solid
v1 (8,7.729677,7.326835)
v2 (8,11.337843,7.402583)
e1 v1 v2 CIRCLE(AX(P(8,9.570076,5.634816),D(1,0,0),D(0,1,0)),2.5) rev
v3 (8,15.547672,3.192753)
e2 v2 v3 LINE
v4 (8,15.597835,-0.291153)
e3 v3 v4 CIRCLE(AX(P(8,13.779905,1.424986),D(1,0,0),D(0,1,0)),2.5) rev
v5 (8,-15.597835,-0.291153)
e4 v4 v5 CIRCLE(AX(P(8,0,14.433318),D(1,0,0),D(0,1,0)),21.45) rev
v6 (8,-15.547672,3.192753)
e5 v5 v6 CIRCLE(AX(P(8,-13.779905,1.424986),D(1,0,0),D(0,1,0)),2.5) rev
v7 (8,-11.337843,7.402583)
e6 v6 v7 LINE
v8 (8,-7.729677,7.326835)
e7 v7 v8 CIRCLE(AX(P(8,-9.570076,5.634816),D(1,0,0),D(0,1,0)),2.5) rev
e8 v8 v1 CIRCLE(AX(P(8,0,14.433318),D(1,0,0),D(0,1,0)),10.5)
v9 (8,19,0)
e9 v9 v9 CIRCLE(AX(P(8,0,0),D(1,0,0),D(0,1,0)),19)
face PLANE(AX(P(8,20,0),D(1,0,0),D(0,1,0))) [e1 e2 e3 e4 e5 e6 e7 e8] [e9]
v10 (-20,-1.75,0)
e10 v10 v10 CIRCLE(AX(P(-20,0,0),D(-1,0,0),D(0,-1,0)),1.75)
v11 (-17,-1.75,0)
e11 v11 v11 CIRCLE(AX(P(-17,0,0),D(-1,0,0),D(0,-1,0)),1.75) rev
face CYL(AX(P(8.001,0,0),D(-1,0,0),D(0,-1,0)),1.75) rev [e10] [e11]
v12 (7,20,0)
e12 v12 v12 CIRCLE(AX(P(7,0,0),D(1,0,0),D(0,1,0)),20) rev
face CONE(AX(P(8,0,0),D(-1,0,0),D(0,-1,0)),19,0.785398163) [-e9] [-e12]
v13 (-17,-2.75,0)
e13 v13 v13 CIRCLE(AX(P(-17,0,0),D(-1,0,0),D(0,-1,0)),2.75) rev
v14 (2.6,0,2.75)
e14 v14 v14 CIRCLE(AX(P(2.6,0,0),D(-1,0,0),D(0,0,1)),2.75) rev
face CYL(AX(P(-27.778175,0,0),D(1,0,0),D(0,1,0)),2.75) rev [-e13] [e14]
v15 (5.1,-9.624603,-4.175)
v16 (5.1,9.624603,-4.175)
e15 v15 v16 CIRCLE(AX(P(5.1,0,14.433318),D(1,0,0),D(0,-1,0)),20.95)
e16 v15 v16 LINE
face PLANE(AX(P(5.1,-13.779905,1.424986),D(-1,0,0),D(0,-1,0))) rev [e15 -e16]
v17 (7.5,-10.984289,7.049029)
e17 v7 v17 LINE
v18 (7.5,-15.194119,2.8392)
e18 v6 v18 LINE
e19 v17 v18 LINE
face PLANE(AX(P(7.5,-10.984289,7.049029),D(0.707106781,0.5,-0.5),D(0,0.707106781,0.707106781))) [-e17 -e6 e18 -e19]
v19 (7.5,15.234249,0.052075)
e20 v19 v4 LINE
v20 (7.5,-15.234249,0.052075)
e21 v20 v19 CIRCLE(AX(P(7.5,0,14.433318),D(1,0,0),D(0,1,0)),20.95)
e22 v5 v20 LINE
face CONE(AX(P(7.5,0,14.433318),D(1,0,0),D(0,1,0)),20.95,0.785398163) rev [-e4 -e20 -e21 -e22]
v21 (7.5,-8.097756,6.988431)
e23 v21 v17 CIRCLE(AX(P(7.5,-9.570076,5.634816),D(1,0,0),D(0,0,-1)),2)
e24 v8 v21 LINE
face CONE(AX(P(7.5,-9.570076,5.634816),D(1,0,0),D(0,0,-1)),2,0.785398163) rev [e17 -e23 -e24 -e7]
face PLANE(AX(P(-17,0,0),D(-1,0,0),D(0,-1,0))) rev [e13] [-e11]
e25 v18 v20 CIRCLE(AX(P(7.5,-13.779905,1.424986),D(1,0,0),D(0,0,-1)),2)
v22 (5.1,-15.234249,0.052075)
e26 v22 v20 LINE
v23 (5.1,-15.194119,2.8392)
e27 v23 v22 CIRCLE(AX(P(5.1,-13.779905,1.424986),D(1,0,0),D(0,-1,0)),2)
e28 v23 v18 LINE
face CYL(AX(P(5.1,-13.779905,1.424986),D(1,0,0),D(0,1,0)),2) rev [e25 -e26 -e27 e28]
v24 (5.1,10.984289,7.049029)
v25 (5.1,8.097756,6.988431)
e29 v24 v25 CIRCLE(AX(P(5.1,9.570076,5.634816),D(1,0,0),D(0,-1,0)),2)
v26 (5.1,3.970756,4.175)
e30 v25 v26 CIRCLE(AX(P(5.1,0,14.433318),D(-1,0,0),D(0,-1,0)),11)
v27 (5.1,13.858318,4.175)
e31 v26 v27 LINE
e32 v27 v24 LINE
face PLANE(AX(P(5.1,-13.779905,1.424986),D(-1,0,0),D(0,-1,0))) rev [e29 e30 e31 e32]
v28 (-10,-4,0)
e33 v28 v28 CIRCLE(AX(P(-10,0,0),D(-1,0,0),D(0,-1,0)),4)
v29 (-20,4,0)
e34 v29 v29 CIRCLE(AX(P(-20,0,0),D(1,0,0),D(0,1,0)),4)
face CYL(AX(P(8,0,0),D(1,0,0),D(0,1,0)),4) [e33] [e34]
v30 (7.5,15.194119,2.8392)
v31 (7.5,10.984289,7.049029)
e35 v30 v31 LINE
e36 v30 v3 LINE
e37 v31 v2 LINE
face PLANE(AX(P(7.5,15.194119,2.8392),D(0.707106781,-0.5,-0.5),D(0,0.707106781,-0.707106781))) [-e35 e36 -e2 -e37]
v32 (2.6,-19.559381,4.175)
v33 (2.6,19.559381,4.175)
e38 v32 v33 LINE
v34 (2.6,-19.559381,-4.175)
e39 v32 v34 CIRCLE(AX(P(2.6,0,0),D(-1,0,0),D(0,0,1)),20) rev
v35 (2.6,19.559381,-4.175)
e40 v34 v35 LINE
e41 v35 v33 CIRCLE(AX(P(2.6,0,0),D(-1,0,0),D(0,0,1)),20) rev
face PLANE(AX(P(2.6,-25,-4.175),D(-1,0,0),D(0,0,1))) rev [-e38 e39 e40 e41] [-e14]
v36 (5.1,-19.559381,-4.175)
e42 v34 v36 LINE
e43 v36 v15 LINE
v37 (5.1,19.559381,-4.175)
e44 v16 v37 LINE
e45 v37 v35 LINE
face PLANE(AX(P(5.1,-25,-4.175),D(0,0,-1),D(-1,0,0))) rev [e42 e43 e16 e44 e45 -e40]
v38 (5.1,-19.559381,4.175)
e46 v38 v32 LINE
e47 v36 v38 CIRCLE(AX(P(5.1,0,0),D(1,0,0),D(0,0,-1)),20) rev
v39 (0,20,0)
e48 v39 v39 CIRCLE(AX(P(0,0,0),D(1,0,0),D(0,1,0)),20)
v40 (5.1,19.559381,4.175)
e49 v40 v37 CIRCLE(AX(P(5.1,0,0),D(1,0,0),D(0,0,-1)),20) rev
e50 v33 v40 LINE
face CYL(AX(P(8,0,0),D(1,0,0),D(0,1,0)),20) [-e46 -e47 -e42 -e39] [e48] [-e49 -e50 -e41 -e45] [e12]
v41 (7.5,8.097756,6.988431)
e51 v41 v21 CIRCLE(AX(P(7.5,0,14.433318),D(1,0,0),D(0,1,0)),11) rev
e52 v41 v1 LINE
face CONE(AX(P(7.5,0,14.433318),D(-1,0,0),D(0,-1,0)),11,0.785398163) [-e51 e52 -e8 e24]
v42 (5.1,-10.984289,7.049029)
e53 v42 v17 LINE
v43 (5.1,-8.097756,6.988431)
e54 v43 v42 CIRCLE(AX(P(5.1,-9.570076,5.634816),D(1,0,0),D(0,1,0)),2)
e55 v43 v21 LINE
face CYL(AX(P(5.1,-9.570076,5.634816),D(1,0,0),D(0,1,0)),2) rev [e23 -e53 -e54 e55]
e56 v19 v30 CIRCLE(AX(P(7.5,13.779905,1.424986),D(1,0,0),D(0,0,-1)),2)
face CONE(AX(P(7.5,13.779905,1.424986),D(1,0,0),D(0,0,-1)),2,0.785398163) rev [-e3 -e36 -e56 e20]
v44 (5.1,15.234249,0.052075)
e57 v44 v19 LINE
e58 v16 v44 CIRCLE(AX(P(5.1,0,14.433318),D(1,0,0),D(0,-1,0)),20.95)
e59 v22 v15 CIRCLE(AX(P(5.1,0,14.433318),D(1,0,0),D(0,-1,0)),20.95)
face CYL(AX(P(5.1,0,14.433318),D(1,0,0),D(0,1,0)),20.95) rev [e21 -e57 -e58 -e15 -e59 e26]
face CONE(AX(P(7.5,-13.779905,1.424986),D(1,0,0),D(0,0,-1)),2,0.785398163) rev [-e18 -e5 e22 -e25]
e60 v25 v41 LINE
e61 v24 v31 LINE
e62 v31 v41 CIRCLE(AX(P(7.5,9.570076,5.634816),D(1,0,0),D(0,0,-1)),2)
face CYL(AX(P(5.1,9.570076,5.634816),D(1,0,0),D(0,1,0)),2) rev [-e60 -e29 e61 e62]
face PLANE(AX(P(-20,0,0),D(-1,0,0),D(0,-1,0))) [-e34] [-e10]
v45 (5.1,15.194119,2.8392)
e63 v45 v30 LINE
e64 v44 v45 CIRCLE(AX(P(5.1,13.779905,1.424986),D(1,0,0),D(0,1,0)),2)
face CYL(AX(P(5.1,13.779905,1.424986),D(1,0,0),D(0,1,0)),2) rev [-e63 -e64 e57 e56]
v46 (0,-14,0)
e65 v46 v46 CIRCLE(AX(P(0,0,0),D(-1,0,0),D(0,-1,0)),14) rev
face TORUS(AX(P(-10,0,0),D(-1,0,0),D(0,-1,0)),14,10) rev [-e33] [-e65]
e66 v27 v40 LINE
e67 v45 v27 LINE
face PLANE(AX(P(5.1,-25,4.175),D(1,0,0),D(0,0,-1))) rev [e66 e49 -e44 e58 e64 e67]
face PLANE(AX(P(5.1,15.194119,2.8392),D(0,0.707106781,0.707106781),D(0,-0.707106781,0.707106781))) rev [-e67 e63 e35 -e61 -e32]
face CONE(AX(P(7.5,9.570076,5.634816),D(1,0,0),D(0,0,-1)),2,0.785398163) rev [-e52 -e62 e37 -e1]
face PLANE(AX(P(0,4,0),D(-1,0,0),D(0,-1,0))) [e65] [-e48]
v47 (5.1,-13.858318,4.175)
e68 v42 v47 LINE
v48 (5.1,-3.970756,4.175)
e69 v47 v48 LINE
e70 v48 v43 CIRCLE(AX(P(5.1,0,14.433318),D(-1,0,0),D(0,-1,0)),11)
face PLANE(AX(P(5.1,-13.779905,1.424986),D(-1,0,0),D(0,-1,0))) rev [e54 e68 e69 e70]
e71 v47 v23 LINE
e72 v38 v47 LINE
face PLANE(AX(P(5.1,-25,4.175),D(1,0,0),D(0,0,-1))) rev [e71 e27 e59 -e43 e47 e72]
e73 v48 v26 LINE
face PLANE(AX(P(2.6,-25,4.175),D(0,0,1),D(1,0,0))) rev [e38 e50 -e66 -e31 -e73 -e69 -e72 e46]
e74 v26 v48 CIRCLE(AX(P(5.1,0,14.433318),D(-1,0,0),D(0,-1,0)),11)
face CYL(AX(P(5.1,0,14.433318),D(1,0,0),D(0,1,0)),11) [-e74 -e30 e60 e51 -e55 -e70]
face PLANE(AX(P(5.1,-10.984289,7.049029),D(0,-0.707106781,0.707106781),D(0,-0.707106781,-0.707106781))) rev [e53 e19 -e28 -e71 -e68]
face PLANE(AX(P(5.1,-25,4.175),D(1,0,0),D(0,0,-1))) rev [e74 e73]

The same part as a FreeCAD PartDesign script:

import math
import FreeCAD as App
import Part
import Sketcher
Q = App.Units.Quantity


def edges_at(feature, points):
    """Names of the edges that pass closest to the given points."""
    edges = feature.Shape.Edges
    near = lambda p: min(range(len(edges)), key=lambda i: edges[i].distToShape(Part.Vertex(*p))[0])
    return sorted({f"Edge{near(p) + 1}" for p in points})

doc = App.newDocument("Part")
params = doc.addObject("Spreadsheet::Sheet", "Params")
for row, (alias, value) in enumerate([
    ("sketch1_width", "28 mm"),
    ("sketch1_width2", "8 mm"),
    ("sketch1_height", "4 mm"),
    ("revolution_angle", "360 deg"),
    ("sketch2_radius", "2 mm"),
    ("sketch2_radius2", "11 mm"),
    ("sketch2_radius3", "20.95 mm"),
    ("pocket1_length", "2.9 mm"),
    ("fillet_radius", "10 mm"),
    ("sketch3_diameter", "3.5 mm"),
    ("sketch4_diameter", "5.5 mm"),
    ("pocket3_length", "22.1 mm"),
    ("chamfer_size", "1 mm"),
    ("chamfer2_size", "0.5 mm"),
    ("sketch5_width", "2.5 mm"),
    ("sketch5_height", "8.35 mm"),
    ("pocket4_length", "50 mm"),
], start=1):
    params.set(f"A{row}", alias)
    params.set(f"B{row}", "=" + value)
    params.setAlias(f"B{row}", alias)

body = doc.addObject("PartDesign::Body", "Body")

# Sketch on XY plane
sketch1 = body.newObject("Sketcher::SketchObject", "Sketch")
sketch1.AttachmentSupport = (doc.getObject("XY_Plane"), [""])
sketch1.MapMode = "FlatFace"
sketch1.addGeometry(Part.LineSegment(App.Vector(-20, 4, 0), App.Vector(-20, 0, 0)), False)
sketch1.addGeometry(Part.LineSegment(App.Vector(-20, 0, 0), App.Vector(8, 0, 0)), False)
sketch1.addGeometry(Part.LineSegment(App.Vector(8, 0, 0), App.Vector(8, 20, 0)), False)
sketch1.addGeometry(Part.LineSegment(App.Vector(8, 20, 0), App.Vector(0, 20, 0)), False)
sketch1.addGeometry(Part.LineSegment(App.Vector(0, 20, 0), App.Vector(0, 4, 0)), False)
sketch1.addGeometry(Part.LineSegment(App.Vector(0, 4, 0), App.Vector(-20, 4, 0)), False)
sketch1.addConstraint(Sketcher.Constraint("Coincident", 0, 2, 1, 1))
sketch1.addConstraint(Sketcher.Constraint("Coincident", 1, 2, 2, 1))
sketch1.addConstraint(Sketcher.Constraint("Coincident", 2, 2, 3, 1))
sketch1.addConstraint(Sketcher.Constraint("Coincident", 3, 2, 4, 1))
sketch1.addConstraint(Sketcher.Constraint("Coincident", 4, 2, 5, 1))
sketch1.addConstraint(Sketcher.Constraint("Coincident", 5, 2, 0, 1))
sketch1.addConstraint(Sketcher.Constraint("Vertical", 0))
sketch1.addConstraint(Sketcher.Constraint("Horizontal", 1))
sketch1.addConstraint(Sketcher.Constraint("Vertical", 2))
sketch1.addConstraint(Sketcher.Constraint("Horizontal", 3))
sketch1.addConstraint(Sketcher.Constraint("Vertical", 4))
sketch1.addConstraint(Sketcher.Constraint("Horizontal", 5))
sketch1.addConstraint(Sketcher.Constraint("PointOnObject", 0, 2, -1))
sketch1.addConstraint(Sketcher.Constraint("PointOnObject", 3, 2, -2))
sketch1.addConstraint(Sketcher.Constraint("Equal", 5, 2))
sketch1.addConstraint(Sketcher.Constraint("DistanceX", 1, 1, 1, 2, Q("28 mm")))
sketch1.addConstraint(Sketcher.Constraint("DistanceX", 3, 2, 3, 1, Q("8 mm")))
sketch1.addConstraint(Sketcher.Constraint("DistanceY", 0, 2, 0, 1, Q("4 mm")))
sketch1.setExpression("Constraints[15]", "Params.sketch1_width")
sketch1.setExpression("Constraints[16]", "Params.sketch1_width2")
sketch1.setExpression("Constraints[17]", "Params.sketch1_height")
revolution = body.newObject("PartDesign::Revolution", "Revolution")
revolution.Profile = sketch1
revolution.ReferenceAxis = (sketch1, ["H_Axis"])
revolution.setExpression("Angle", "Params.revolution_angle")

# Sketch on YZ plane
sketch2 = body.newObject("Sketcher::SketchObject", "Sketch001")
sketch2.AttachmentSupport = (doc.getObject("YZ_Plane"), [""])
sketch2.MapMode = "FlatFace"
sketch2.AttachmentOffset = App.Placement(App.Vector(0, 0, 8), App.Rotation())
sketch2.addGeometry(Part.LineSegment(App.Vector(15.2, 2.8, 0), App.Vector(11, 7, 0)), False)
sketch2.addGeometry(Part.ArcOfCircle(Part.Circle(App.Vector(9.6, 5.6, 0), App.Vector(0, 0, 1), 2), math.radians(45), math.radians(137)), False)
sketch2.addGeometry(Part.ArcOfCircle(Part.Circle(App.Vector(0, 14.4, 0), App.Vector(0, 0, 1), 11), math.radians(-137), math.radians(-43)), False)
sketch2.addGeometry(Part.ArcOfCircle(Part.Circle(App.Vector(-9.6, 5.6, 0), App.Vector(0, 0, 1), 2), math.radians(43), math.radians(135)), False)
sketch2.addGeometry(Part.LineSegment(App.Vector(-11, 7, 0), App.Vector(-15.2, 2.8, 0)), False)
sketch2.addGeometry(Part.ArcOfCircle(Part.Circle(App.Vector(-13.8, 1.4, 0), App.Vector(0, 0, 1), 2), math.radians(135), math.radians(223)), False)
sketch2.addGeometry(Part.ArcOfCircle(Part.Circle(App.Vector(0, 14.4, 0), App.Vector(0, 0, 1), 21), math.radians(-137), math.radians(-43)), False)
sketch2.addGeometry(Part.ArcOfCircle(Part.Circle(App.Vector(13.8, 1.4, 0), App.Vector(0, 0, 1), 2), math.radians(-43), math.radians(45)), False)
sketch2.addConstraint(Sketcher.Constraint("Tangent", 0, 2, 1, 1))
sketch2.addConstraint(Sketcher.Constraint("Tangent", 1, 2, 2, 2))
sketch2.addConstraint(Sketcher.Constraint("Tangent", 2, 1, 3, 1))
sketch2.addConstraint(Sketcher.Constraint("Tangent", 3, 2, 4, 1))
sketch2.addConstraint(Sketcher.Constraint("Tangent", 4, 2, 5, 1))
sketch2.addConstraint(Sketcher.Constraint("Tangent", 5, 2, 6, 1))
sketch2.addConstraint(Sketcher.Constraint("Tangent", 6, 2, 7, 1))
sketch2.addConstraint(Sketcher.Constraint("Tangent", 7, 2, 0, 1))
sketch2.addConstraint(Sketcher.Constraint("Coincident", 6, 3, 2, 3))
sketch2.addConstraint(Sketcher.Constraint("Equal", 1, 3))
sketch2.addConstraint(Sketcher.Constraint("Equal", 3, 5))
sketch2.addConstraint(Sketcher.Constraint("Equal", 5, 7))
sketch2.addConstraint(Sketcher.Constraint("Symmetric", 1, 3, 3, 3, -2))
sketch2.addConstraint(Sketcher.Constraint("Perpendicular", 0, 4))
sketch2.addConstraint(Sketcher.Constraint("Horizontal", 5, 3, 7, 3))
sketch2.addConstraint(Sketcher.Constraint("Radius", 1, Q("2 mm")))
sketch2.addConstraint(Sketcher.Constraint("Radius", 2, Q("11 mm")))
sketch2.addConstraint(Sketcher.Constraint("Radius", 6, Q("20.95 mm")))
sketch2.addConstraint(Sketcher.Constraint("Distance", 0, Q("5.953598 mm")))
sketch2.addConstraint(Sketcher.Constraint("DistanceY", -1, 1, 4, 2, Q("2.8392 mm")))
sketch2.setExpression("Constraints[15]", "Params.sketch2_radius")
sketch2.setExpression("Constraints[16]", "Params.sketch2_radius2")
sketch2.setExpression("Constraints[17]", "Params.sketch2_radius3")
pocket1 = body.newObject("PartDesign::Pocket", "Pocket")
pocket1.Profile = sketch2
pocket1.setExpression("Length", "Params.pocket1_length")
doc.recompute()

fillet = body.newObject("PartDesign::Fillet", "Fillet")
fillet.Base = (pocket1, edges_at(pocket1, [(0, -4, 0)]))
fillet.setExpression("Radius", "Params.fillet_radius")

# Sketch on YZ plane
sketch3 = body.newObject("Sketcher::SketchObject", "Sketch002")
sketch3.AttachmentSupport = (doc.getObject("YZ_Plane"), [""])
sketch3.MapMode = "FlatFace"
sketch3.AttachmentOffset = App.Placement(App.Vector(0, 0, -20), App.Rotation())
sketch3.addGeometry(Part.Circle(App.Vector(0, 0, 0), App.Vector(0, 0, 1), 1.8), False)
sketch3.addConstraint(Sketcher.Constraint("Coincident", 0, 3, -1, 1))
sketch3.addConstraint(Sketcher.Constraint("Diameter", 0, Q("3.5 mm")))
sketch3.setExpression("Constraints[1]", "Params.sketch3_diameter")
pocket2 = body.newObject("PartDesign::Pocket", "Pocket001")
pocket2.Profile = sketch3
pocket2.Type = "UpToFirst"
pocket2.Reversed = True

# Sketch on YZ plane
sketch4 = body.newObject("Sketcher::SketchObject", "Sketch003")
sketch4.AttachmentSupport = (doc.getObject("YZ_Plane"), [""])
sketch4.MapMode = "FlatFace"
sketch4.AttachmentOffset = App.Placement(App.Vector(0, 0, 5.1), App.Rotation())
sketch4.addGeometry(Part.Circle(App.Vector(0, 0, 0), App.Vector(0, 0, 1), 2.8), False)
sketch4.addConstraint(Sketcher.Constraint("Coincident", 0, 3, -1, 1))
sketch4.addConstraint(Sketcher.Constraint("Diameter", 0, Q("5.5 mm")))
sketch4.setExpression("Constraints[1]", "Params.sketch4_diameter")
pocket3 = body.newObject("PartDesign::Pocket", "Pocket002")
pocket3.Profile = sketch4
pocket3.setExpression("Length", "Params.pocket3_length")
doc.recompute()

chamfer = body.newObject("PartDesign::Chamfer", "Chamfer")
chamfer.Base = (pocket3, edges_at(pocket3, [(8, -20, 0)]))
chamfer.setExpression("Size", "Params.chamfer_size")
doc.recompute()

chamfer2 = body.newObject("PartDesign::Chamfer", "Chamfer001")
chamfer2.Base = (chamfer, edges_at(chamfer, [
    (8, -15.78, 1.454),
    (8, 0, -6.517),
    (8, 15.78, 1.454),
    (8, 13.089, 4.944),
    (8, 9.528, 7.634),
    (8, 0, 3.433),
    (8, -9.528, 7.634),
    (8, -13.089, 4.944),
]))
chamfer2.setExpression("Size", "Params.chamfer2_size")

# Sketch on XZ plane
sketch5 = body.newObject("Sketcher::SketchObject", "Sketch004")
sketch5.AttachmentSupport = (doc.getObject("XZ_Plane"), [""])
sketch5.MapMode = "FlatFace"
sketch5.addGeometry(Part.LineSegment(App.Vector(2.6, -4.2, 0), App.Vector(2.6, 4.2, 0)), False)
sketch5.addGeometry(Part.LineSegment(App.Vector(2.6, 4.2, 0), App.Vector(5.1, 4.2, 0)), False)
sketch5.addGeometry(Part.LineSegment(App.Vector(5.1, 4.2, 0), App.Vector(5.1, -4.2, 0)), False)
sketch5.addGeometry(Part.LineSegment(App.Vector(5.1, -4.2, 0), App.Vector(2.6, -4.2, 0)), False)
sketch5.addConstraint(Sketcher.Constraint("Coincident", 0, 2, 1, 1))
sketch5.addConstraint(Sketcher.Constraint("Coincident", 1, 2, 2, 1))
sketch5.addConstraint(Sketcher.Constraint("Coincident", 2, 2, 3, 1))
sketch5.addConstraint(Sketcher.Constraint("Coincident", 3, 2, 0, 1))
sketch5.addConstraint(Sketcher.Constraint("Vertical", 0))
sketch5.addConstraint(Sketcher.Constraint("Horizontal", 1))
sketch5.addConstraint(Sketcher.Constraint("Vertical", 2))
sketch5.addConstraint(Sketcher.Constraint("Horizontal", 3))
sketch5.addConstraint(Sketcher.Constraint("DistanceX", 1, 1, 1, 2, Q("2.5 mm")))
sketch5.addConstraint(Sketcher.Constraint("DistanceY", 0, 1, 0, 2, Q("8.35 mm")))
sketch5.addConstraint(Sketcher.Constraint("DistanceX", -1, 1, 0, 2, Q("2.6 mm")))
sketch5.addConstraint(Sketcher.Constraint("DistanceY", -1, 1, 0, 2, Q("4.175 mm")))
sketch5.setExpression("Constraints[8]", "Params.sketch5_width")
sketch5.setExpression("Constraints[9]", "Params.sketch5_height")
pocket4 = body.newObject("PartDesign::Pocket", "Pocket003")
pocket4.Profile = sketch5
pocket4.setExpression("Length", "Params.pocket4_length")
pocket4.Midplane = True

doc.recompute()
